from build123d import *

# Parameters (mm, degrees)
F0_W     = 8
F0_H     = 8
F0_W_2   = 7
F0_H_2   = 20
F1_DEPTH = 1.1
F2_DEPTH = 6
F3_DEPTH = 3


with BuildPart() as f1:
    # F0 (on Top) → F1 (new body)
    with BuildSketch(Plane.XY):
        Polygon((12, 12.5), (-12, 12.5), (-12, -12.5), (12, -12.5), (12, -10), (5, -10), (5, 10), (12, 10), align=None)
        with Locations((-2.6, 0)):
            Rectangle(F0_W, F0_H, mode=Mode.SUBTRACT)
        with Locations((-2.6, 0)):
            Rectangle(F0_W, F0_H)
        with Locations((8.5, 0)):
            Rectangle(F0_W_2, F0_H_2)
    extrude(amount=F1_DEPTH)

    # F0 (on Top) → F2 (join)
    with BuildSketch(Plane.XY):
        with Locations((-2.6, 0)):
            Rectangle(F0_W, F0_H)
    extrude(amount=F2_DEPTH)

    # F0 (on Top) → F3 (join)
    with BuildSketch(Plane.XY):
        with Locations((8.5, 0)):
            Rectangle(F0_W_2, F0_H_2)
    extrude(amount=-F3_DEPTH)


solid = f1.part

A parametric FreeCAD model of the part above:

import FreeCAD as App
import Part
import Sketcher
from FreeCAD import Vector

doc = App.newDocument("Part")
body = doc.addObject("PartDesign::Body", "Body")

sketch1 = body.newObject("Sketcher::SketchObject", "Sketch")
sketch1.AttachmentSupport = (doc.getObject("XY_Plane"), [""])
sketch1.MapMode = "FlatFace"
sketch1.addGeometry(Part.LineSegment(Vector(12, 12, 0), Vector(-12, 12, 0)), False)
sketch1.addGeometry(Part.LineSegment(Vector(-12, 12, 0), Vector(-12, -12, 0)), False)
sketch1.addGeometry(Part.LineSegment(Vector(-12, -12, 0), Vector(12, -12, 0)), False)
sketch1.addGeometry(Part.LineSegment(Vector(12, -12, 0), Vector(12, 12, 0)), False)
sketch1.addConstraint(Sketcher.Constraint("Coincident", 0, 2, 1, 1))
sketch1.addConstraint(Sketcher.Constraint("Coincident", 1, 2, 2, 1))
sketch1.addConstraint(Sketcher.Constraint("Coincident", 2, 2, 3, 1))
sketch1.addConstraint(Sketcher.Constraint("Coincident", 3, 2, 0, 1))
sketch1.addConstraint(Sketcher.Constraint("Horizontal", 0))
sketch1.addConstraint(Sketcher.Constraint("Vertical", 1))
sketch1.addConstraint(Sketcher.Constraint("Horizontal", 2))
sketch1.addConstraint(Sketcher.Constraint("Vertical", 3))
sketch1.addConstraint(Sketcher.Constraint("Symmetric", 0, 2, 2, 2, -1, 1))
sketch1.addConstraint(Sketcher.Constraint("DistanceX", 0, 2, 0, 1, 24.0))
sketch1.addConstraint(Sketcher.Constraint("DistanceY", 1, 2, 1, 1, 25.0))
pad1 = body.newObject("PartDesign::Pad", "Pad")
pad1.Profile = sketch1
pad1.Length = 1.1

sketch2 = body.newObject("Sketcher::SketchObject", "Sketch001")
sketch2.AttachmentSupport = (doc.getObject("XY_Plane"), [""])
sketch2.MapMode = "FlatFace"
sketch2.addGeometry(Part.LineSegment(Vector(-7, 4, 0), Vector(-7, -4, 0)), False)
sketch2.addGeometry(Part.LineSegment(Vector(-7, -4, 0), Vector(1, -4, 0)), False)
sketch2.addGeometry(Part.LineSegment(Vector(1, -4, 0), Vector(1, 4, 0)), False)
sketch2.addGeometry(Part.LineSegment(Vector(1, 4, 0), Vector(-7, 4, 0)), False)
sketch2.addConstraint(Sketcher.Constraint("Coincident", 0, 2, 1, 1))
sketch2.addConstraint(Sketcher.Constraint("Coincident", 1, 2, 2, 1))
sketch2.addConstraint(Sketcher.Constraint("Coincident", 2, 2, 3, 1))
sketch2.addConstraint(Sketcher.Constraint("Coincident", 3, 2, 0, 1))
sketch2.addConstraint(Sketcher.Constraint("Vertical", 0))
sketch2.addConstraint(Sketcher.Constraint("Horizontal", 1))
sketch2.addConstraint(Sketcher.Constraint("Vertical", 2))
sketch2.addConstraint(Sketcher.Constraint("Horizontal", 3))
sketch2.addConstraint(Sketcher.Constraint("Equal", 3, 0))
sketch2.addConstraint(Sketcher.Constraint("DistanceX", 1, 1, 1, 2, 8.0))
sketch2.addConstraint(Sketcher.Constraint("DistanceY", 0, 2, -1, 1, 4.0))
sketch2.addConstraint(Sketcher.Constraint("DistanceX", 0, 2, -1, 1, 6.6))
pad2 = body.newObject("PartDesign::Pad", "Pad001")
pad2.Profile = sketch2
pad2.Length = 6

sketch3 = body.newObject("Sketcher::SketchObject", "Sketch002")
sketch3.AttachmentSupport = (doc.getObject("XY_Plane"), [""])
sketch3.MapMode = "FlatFace"
sketch3.addGeometry(Part.LineSegment(Vector(5, 10, 0), Vector(5, -10, 0)), False)
sketch3.addGeometry(Part.LineSegment(Vector(5, -10, 0), Vector(12, -10, 0)), False)
sketch3.addGeometry(Part.LineSegment(Vector(12, -10, 0), Vector(12, 10, 0)), False)
sketch3.addGeometry(Part.LineSegment(Vector(12, 10, 0), Vector(5, 10, 0)), False)
sketch3.addConstraint(Sketcher.Constraint("Coincident", 0, 2, 1, 1))
sketch3.addConstraint(Sketcher.Constraint("Coincident", 1, 2, 2, 1))
sketch3.addConstraint(Sketcher.Constraint("Coincident", 2, 2, 3, 1))
sketch3.addConstraint(Sketcher.Constraint("Coincident", 3, 2, 0, 1))
sketch3.addConstraint(Sketcher.Constraint("Vertical", 0))
sketch3.addConstraint(Sketcher.Constraint("Horizontal", 1))
sketch3.addConstraint(Sketcher.Constraint("Vertical", 2))
sketch3.addConstraint(Sketcher.Constraint("Horizontal", 3))
sketch3.addConstraint(Sketcher.Constraint("DistanceX", 1, 1, 1, 2, 7.0))
sketch3.addConstraint(Sketcher.Constraint("DistanceY", 0, 2, 0, 1, 20.0))
sketch3.addConstraint(Sketcher.Constraint("DistanceX", -1, 1, 0, 2, 5.0))
sketch3.addConstraint(Sketcher.Constraint("DistanceY", 0, 2, -1, 1, 10.0))
pad3 = body.newObject("PartDesign::Pad", "Pad002")
pad3.Profile = sketch3
pad3.Length = 3
pad3.Reversed = True

doc.recompute()
